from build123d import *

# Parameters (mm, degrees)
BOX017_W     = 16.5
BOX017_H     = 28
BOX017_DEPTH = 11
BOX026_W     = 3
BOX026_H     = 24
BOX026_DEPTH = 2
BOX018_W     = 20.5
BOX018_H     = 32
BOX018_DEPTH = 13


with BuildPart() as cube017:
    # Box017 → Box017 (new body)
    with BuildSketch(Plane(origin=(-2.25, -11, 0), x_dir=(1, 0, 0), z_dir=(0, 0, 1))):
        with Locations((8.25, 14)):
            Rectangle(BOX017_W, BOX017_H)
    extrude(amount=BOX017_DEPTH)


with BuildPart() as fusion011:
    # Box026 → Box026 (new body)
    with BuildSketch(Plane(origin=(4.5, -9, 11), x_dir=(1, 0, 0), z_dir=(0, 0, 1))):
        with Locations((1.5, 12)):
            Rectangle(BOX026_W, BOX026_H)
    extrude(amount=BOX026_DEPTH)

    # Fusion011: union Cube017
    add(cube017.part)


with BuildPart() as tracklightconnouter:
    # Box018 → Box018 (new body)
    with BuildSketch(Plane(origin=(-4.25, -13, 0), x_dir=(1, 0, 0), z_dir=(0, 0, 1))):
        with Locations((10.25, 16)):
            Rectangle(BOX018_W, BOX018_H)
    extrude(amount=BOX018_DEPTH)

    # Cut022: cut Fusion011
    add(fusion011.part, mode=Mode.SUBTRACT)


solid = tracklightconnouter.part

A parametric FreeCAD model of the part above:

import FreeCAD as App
import Part
import Sketcher
Q = App.Units.Quantity


def add_polygon(sketch, points):
    """Adds a closed chain of lines whose ends are joined by coincident constraints."""
    first, n = sketch.GeometryCount, len(points)
    for a, b in zip(points, points[1:] + points[:1]):
        sketch.addGeometry(Part.LineSegment(App.Vector(*a, 0), App.Vector(*b, 0)), False)
    for i in range(n):
        sketch.addConstraint(Sketcher.Constraint("Coincident", first + i, 2, first + (i + 1) % n, 1))

doc = App.newDocument("Part")
body = doc.addObject("PartDesign::Body", "Body")

# Sketch on XY plane
sketch1 = body.newObject("Sketcher::SketchObject", "Sketch")
sketch1.AttachmentSupport = (doc.getObject("XY_Plane"), [""])
sketch1.MapMode = "FlatFace"
add_polygon(sketch1, [(-2, 17), (-2, -11), (14, -11), (14, 17)])  # lines 0-3
sketch1.addConstraint([
    Sketcher.Constraint("Vertical", 0),
    Sketcher.Constraint("Horizontal", 1),
    Sketcher.Constraint("Vertical", 2),
    Sketcher.Constraint("Horizontal", 3),
    Sketcher.Constraint("DistanceY", 0, 2, 0, 1, Q("28 mm")),
    Sketcher.Constraint("DistanceX", 1, 1, 1, 2, Q("16.5 mm")),
    Sketcher.Constraint("DistanceY", 0, 2, -1, 1, Q("11 mm")),
    Sketcher.Constraint("DistanceX", 0, 2, -1, 1, Q("2.25 mm")),
])
pad1 = body.newObject("PartDesign::Pad", "Pad")
pad1.Profile = sketch1
pad1.Length = 11
body2 = doc.addObject("PartDesign::Body", "Body001")

# Sketch on XY plane
sketch2 = body2.newObject("Sketcher::SketchObject", "Sketch001")
sketch2.AttachmentSupport = (doc.getObject("XY_Plane001"), [""])
sketch2.MapMode = "FlatFace"
sketch2.AttachmentOffset = App.Placement(App.Vector(0, 0, 11), App.Rotation())
add_polygon(sketch2, [(4.5, 15), (4.5, -9), (7.5, -9), (7.5, 15)])  # lines 0-3
sketch2.addConstraint([
    Sketcher.Constraint("Vertical", 0),
    Sketcher.Constraint("Horizontal", 1),
    Sketcher.Constraint("Vertical", 2),
    Sketcher.Constraint("Horizontal", 3),
    Sketcher.Constraint("DistanceX", 1, 1, 1, 2, Q("3 mm")),
    Sketcher.Constraint("DistanceY", 0, 2, 0, 1, Q("24 mm")),
    Sketcher.Constraint("DistanceY", 0, 2, -1, 1, Q("9 mm")),
    Sketcher.Constraint("DistanceX", -1, 1, 0, 2, Q("4.5 mm")),
])
pad2 = body2.newObject("PartDesign::Pad", "Pad001")
pad2.Profile = sketch2
pad2.Length = 2
doc.recompute()

boolean = body2.newObject("PartDesign::Boolean", "Boolean")
boolean.Type = "Fuse"
boolean.addObjects([body])
body3 = doc.addObject("PartDesign::Body", "Body002")

# Sketch on XY plane
sketch3 = body3.newObject("Sketcher::SketchObject", "Sketch002")
sketch3.AttachmentSupport = (doc.getObject("XY_Plane002"), [""])
sketch3.MapMode = "FlatFace"
add_polygon(sketch3, [(-4, 19), (-4, -13), (16, -13), (16, 19)])  # lines 0-3
sketch3.addConstraint([
    Sketcher.Constraint("Vertical", 0),
    Sketcher.Constraint("Horizontal", 1),
    Sketcher.Constraint("Vertical", 2),
    Sketcher.Constraint("Horizontal", 3),
    Sketcher.Constraint("DistanceY", 0, 2, 0, 1, Q("32 mm")),
    Sketcher.Constraint("DistanceX", 1, 1, 1, 2, Q("20.5 mm")),
    Sketcher.Constraint("DistanceY", 0, 2, -1, 1, Q("13 mm")),
    Sketcher.Constraint("DistanceX", 0, 2, -1, 1, Q("4.25 mm")),
])
pad3 = body3.newObject("PartDesign::Pad", "Pad002")
pad3.Profile = sketch3
pad3.Length = 13
doc.recompute()

boolean2 = body3.newObject("PartDesign::Boolean", "Boolean001")
boolean2.Type = "Cut"
boolean2.addObjects([body2])

doc.recompute()
